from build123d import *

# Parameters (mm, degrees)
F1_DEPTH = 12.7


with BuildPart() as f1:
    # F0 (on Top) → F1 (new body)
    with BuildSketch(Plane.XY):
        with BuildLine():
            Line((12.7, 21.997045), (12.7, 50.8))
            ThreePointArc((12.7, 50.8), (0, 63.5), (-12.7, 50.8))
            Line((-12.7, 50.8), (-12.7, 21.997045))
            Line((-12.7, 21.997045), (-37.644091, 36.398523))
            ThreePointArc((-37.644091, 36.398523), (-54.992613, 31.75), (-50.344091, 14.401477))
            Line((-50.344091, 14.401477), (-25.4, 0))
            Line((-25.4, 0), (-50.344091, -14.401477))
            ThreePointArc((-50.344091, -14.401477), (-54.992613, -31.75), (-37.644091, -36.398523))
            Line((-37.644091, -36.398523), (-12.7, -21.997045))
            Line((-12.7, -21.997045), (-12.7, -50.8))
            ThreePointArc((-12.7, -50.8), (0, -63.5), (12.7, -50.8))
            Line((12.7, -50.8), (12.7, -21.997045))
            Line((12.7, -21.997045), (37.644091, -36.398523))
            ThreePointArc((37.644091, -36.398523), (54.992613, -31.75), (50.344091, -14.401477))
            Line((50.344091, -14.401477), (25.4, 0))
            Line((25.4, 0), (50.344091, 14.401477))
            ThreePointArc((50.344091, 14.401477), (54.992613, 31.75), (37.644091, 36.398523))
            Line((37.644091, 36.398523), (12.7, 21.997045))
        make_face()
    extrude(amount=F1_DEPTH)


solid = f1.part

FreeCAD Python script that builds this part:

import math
import FreeCAD as App
import Part
import Sketcher

V = App.Vector
Q = App.Units.Quantity

doc = App.newDocument("Part")
body = doc.addObject("PartDesign::Body", "Body")

sketch1 = doc.addObject("Sketcher::SketchObject", "Sketch")
body.addObject(sketch1)
sketch1.AttachmentSupport = (doc.XY_Plane, [""])
sketch1.MapMode = "FlatFace"
sketch1.addGeometry([
    Part.LineSegment(V(13, 22, 0), V(13, 51, 0)),
    Part.ArcOfCircle(Part.Circle(V(0, 51, 0), V(0, 0, 1), 13), math.radians(0), math.radians(180)),
    Part.LineSegment(V(-13, 51, 0), V(-13, 22, 0)),
    Part.LineSegment(V(-13, 22, 0), V(-38, 36, 0)),
    Part.ArcOfCircle(Part.Circle(V(-44, 25, 0), V(0, 0, 1), 13), math.radians(60), math.radians(240)),
    Part.LineSegment(V(-50, 14, 0), V(-25, 0, 0)),
    Part.LineSegment(V(-25, 0, 0), V(-50, -14, 0)),
    Part.ArcOfCircle(Part.Circle(V(-44, -25, 0), V(0, 0, 1), 13), math.radians(120), math.radians(300)),
    Part.LineSegment(V(-38, -36, 0), V(-13, -22, 0)),
    Part.LineSegment(V(-13, -22, 0), V(-13, -51, 0)),
    Part.ArcOfCircle(Part.Circle(V(0, -51, 0), V(0, 0, 1), 13), math.radians(180), math.radians(360)),
    Part.LineSegment(V(13, -51, 0), V(13, -22, 0)),
    Part.LineSegment(V(13, -22, 0), V(38, -36, 0)),
    Part.ArcOfCircle(Part.Circle(V(44, -25, 0), V(0, 0, 1), 13), math.radians(-120), math.radians(60)),
    Part.LineSegment(V(50, -14, 0), V(25, 0, 0)),
    Part.LineSegment(V(25, 0, 0), V(50, 14, 0)),
    Part.ArcOfCircle(Part.Circle(V(44, 25, 0), V(0, 0, 1), 13), math.radians(-60), math.radians(120)),
    Part.LineSegment(V(38, 36, 0), V(13, 22, 0)),
], False)
sketch1.addConstraint([
    Sketcher.Constraint("Tangent", 0, 2, 1, 1),
    Sketcher.Constraint("Tangent", 1, 2, 2, 1),
    Sketcher.Constraint("Coincident", 2, 2, 3, 1),
    Sketcher.Constraint("Tangent", 3, 2, 4, 1),
    Sketcher.Constraint("Tangent", 4, 2, 5, 1),
    Sketcher.Constraint("Coincident", 5, 2, 6, 1),
    Sketcher.Constraint("Tangent", 6, 2, 7, 1),
    Sketcher.Constraint("Tangent", 7, 2, 8, 1),
    Sketcher.Constraint("Coincident", 8, 2, 9, 1),
    Sketcher.Constraint("Tangent", 9, 2, 10, 1),
    Sketcher.Constraint("Tangent", 10, 2, 11, 1),
    Sketcher.Constraint("Coincident", 11, 2, 12, 1),
    Sketcher.Constraint("Tangent", 12, 2, 13, 1),
    Sketcher.Constraint("Tangent", 13, 2, 14, 1),
    Sketcher.Constraint("Coincident", 14, 2, 15, 1),
    Sketcher.Constraint("Tangent", 15, 2, 16, 1),
    Sketcher.Constraint("Tangent", 16, 2, 17, 1),
    Sketcher.Constraint("Coincident", 17, 2, 0, 1),
    Sketcher.Constraint("Vertical", 0),
    Sketcher.Constraint("Vertical", 2),
    Sketcher.Constraint("Vertical", 9),
    Sketcher.Constraint("Vertical", 11),
    Sketcher.Constraint("Equal", 1, 4),
    Sketcher.Constraint("Equal", 4, 7),
    Sketcher.Constraint("Equal", 7, 10),
    Sketcher.Constraint("Equal", 10, 13),
    Sketcher.Constraint("Equal", 13, 16),
    Sketcher.Constraint("Symmetric", 1, 3, 10, 3, -1, 1),
    Sketcher.Constraint("Symmetric", 4, 3, 13, 3, -1, 1),
    Sketcher.Constraint("Symmetric", 7, 3, 16, 3, -1, 1),
    Sketcher.Constraint("Symmetric", 5, 2, 14, 2, -1, 1),
    Sketcher.Constraint("Symmetric", 7, 3, 13, 3, -2),
    Sketcher.Constraint("Symmetric", 8, 2, 11, 2, -2),
    Sketcher.Constraint("PointOnObject", 5, 2, -1),
    Sketcher.Constraint("Parallel", 3, 5),
    Sketcher.Constraint("Parallel", 6, 8),
    Sketcher.Constraint("Parallel", 15, 17),
    Sketcher.Constraint("Equal", 3, 5),
    Sketcher.Constraint("Radius", 1, Q("0.5 in")),
    Sketcher.Constraint("DistanceY", -1, 1, 1, 3, Q("2 in")),
    Sketcher.Constraint("DistanceY", -1, 1, 4, 3, Q("1 in")),
    Sketcher.Constraint("DistanceX", 5, 2, -1, 1, Q("1 in")),
])
pad1 = doc.addObject("PartDesign::Pad", "Pad")
body.addObject(pad1)
pad1.Profile = sketch1
pad1.Length = Q("0.5 in")

doc.recompute()
